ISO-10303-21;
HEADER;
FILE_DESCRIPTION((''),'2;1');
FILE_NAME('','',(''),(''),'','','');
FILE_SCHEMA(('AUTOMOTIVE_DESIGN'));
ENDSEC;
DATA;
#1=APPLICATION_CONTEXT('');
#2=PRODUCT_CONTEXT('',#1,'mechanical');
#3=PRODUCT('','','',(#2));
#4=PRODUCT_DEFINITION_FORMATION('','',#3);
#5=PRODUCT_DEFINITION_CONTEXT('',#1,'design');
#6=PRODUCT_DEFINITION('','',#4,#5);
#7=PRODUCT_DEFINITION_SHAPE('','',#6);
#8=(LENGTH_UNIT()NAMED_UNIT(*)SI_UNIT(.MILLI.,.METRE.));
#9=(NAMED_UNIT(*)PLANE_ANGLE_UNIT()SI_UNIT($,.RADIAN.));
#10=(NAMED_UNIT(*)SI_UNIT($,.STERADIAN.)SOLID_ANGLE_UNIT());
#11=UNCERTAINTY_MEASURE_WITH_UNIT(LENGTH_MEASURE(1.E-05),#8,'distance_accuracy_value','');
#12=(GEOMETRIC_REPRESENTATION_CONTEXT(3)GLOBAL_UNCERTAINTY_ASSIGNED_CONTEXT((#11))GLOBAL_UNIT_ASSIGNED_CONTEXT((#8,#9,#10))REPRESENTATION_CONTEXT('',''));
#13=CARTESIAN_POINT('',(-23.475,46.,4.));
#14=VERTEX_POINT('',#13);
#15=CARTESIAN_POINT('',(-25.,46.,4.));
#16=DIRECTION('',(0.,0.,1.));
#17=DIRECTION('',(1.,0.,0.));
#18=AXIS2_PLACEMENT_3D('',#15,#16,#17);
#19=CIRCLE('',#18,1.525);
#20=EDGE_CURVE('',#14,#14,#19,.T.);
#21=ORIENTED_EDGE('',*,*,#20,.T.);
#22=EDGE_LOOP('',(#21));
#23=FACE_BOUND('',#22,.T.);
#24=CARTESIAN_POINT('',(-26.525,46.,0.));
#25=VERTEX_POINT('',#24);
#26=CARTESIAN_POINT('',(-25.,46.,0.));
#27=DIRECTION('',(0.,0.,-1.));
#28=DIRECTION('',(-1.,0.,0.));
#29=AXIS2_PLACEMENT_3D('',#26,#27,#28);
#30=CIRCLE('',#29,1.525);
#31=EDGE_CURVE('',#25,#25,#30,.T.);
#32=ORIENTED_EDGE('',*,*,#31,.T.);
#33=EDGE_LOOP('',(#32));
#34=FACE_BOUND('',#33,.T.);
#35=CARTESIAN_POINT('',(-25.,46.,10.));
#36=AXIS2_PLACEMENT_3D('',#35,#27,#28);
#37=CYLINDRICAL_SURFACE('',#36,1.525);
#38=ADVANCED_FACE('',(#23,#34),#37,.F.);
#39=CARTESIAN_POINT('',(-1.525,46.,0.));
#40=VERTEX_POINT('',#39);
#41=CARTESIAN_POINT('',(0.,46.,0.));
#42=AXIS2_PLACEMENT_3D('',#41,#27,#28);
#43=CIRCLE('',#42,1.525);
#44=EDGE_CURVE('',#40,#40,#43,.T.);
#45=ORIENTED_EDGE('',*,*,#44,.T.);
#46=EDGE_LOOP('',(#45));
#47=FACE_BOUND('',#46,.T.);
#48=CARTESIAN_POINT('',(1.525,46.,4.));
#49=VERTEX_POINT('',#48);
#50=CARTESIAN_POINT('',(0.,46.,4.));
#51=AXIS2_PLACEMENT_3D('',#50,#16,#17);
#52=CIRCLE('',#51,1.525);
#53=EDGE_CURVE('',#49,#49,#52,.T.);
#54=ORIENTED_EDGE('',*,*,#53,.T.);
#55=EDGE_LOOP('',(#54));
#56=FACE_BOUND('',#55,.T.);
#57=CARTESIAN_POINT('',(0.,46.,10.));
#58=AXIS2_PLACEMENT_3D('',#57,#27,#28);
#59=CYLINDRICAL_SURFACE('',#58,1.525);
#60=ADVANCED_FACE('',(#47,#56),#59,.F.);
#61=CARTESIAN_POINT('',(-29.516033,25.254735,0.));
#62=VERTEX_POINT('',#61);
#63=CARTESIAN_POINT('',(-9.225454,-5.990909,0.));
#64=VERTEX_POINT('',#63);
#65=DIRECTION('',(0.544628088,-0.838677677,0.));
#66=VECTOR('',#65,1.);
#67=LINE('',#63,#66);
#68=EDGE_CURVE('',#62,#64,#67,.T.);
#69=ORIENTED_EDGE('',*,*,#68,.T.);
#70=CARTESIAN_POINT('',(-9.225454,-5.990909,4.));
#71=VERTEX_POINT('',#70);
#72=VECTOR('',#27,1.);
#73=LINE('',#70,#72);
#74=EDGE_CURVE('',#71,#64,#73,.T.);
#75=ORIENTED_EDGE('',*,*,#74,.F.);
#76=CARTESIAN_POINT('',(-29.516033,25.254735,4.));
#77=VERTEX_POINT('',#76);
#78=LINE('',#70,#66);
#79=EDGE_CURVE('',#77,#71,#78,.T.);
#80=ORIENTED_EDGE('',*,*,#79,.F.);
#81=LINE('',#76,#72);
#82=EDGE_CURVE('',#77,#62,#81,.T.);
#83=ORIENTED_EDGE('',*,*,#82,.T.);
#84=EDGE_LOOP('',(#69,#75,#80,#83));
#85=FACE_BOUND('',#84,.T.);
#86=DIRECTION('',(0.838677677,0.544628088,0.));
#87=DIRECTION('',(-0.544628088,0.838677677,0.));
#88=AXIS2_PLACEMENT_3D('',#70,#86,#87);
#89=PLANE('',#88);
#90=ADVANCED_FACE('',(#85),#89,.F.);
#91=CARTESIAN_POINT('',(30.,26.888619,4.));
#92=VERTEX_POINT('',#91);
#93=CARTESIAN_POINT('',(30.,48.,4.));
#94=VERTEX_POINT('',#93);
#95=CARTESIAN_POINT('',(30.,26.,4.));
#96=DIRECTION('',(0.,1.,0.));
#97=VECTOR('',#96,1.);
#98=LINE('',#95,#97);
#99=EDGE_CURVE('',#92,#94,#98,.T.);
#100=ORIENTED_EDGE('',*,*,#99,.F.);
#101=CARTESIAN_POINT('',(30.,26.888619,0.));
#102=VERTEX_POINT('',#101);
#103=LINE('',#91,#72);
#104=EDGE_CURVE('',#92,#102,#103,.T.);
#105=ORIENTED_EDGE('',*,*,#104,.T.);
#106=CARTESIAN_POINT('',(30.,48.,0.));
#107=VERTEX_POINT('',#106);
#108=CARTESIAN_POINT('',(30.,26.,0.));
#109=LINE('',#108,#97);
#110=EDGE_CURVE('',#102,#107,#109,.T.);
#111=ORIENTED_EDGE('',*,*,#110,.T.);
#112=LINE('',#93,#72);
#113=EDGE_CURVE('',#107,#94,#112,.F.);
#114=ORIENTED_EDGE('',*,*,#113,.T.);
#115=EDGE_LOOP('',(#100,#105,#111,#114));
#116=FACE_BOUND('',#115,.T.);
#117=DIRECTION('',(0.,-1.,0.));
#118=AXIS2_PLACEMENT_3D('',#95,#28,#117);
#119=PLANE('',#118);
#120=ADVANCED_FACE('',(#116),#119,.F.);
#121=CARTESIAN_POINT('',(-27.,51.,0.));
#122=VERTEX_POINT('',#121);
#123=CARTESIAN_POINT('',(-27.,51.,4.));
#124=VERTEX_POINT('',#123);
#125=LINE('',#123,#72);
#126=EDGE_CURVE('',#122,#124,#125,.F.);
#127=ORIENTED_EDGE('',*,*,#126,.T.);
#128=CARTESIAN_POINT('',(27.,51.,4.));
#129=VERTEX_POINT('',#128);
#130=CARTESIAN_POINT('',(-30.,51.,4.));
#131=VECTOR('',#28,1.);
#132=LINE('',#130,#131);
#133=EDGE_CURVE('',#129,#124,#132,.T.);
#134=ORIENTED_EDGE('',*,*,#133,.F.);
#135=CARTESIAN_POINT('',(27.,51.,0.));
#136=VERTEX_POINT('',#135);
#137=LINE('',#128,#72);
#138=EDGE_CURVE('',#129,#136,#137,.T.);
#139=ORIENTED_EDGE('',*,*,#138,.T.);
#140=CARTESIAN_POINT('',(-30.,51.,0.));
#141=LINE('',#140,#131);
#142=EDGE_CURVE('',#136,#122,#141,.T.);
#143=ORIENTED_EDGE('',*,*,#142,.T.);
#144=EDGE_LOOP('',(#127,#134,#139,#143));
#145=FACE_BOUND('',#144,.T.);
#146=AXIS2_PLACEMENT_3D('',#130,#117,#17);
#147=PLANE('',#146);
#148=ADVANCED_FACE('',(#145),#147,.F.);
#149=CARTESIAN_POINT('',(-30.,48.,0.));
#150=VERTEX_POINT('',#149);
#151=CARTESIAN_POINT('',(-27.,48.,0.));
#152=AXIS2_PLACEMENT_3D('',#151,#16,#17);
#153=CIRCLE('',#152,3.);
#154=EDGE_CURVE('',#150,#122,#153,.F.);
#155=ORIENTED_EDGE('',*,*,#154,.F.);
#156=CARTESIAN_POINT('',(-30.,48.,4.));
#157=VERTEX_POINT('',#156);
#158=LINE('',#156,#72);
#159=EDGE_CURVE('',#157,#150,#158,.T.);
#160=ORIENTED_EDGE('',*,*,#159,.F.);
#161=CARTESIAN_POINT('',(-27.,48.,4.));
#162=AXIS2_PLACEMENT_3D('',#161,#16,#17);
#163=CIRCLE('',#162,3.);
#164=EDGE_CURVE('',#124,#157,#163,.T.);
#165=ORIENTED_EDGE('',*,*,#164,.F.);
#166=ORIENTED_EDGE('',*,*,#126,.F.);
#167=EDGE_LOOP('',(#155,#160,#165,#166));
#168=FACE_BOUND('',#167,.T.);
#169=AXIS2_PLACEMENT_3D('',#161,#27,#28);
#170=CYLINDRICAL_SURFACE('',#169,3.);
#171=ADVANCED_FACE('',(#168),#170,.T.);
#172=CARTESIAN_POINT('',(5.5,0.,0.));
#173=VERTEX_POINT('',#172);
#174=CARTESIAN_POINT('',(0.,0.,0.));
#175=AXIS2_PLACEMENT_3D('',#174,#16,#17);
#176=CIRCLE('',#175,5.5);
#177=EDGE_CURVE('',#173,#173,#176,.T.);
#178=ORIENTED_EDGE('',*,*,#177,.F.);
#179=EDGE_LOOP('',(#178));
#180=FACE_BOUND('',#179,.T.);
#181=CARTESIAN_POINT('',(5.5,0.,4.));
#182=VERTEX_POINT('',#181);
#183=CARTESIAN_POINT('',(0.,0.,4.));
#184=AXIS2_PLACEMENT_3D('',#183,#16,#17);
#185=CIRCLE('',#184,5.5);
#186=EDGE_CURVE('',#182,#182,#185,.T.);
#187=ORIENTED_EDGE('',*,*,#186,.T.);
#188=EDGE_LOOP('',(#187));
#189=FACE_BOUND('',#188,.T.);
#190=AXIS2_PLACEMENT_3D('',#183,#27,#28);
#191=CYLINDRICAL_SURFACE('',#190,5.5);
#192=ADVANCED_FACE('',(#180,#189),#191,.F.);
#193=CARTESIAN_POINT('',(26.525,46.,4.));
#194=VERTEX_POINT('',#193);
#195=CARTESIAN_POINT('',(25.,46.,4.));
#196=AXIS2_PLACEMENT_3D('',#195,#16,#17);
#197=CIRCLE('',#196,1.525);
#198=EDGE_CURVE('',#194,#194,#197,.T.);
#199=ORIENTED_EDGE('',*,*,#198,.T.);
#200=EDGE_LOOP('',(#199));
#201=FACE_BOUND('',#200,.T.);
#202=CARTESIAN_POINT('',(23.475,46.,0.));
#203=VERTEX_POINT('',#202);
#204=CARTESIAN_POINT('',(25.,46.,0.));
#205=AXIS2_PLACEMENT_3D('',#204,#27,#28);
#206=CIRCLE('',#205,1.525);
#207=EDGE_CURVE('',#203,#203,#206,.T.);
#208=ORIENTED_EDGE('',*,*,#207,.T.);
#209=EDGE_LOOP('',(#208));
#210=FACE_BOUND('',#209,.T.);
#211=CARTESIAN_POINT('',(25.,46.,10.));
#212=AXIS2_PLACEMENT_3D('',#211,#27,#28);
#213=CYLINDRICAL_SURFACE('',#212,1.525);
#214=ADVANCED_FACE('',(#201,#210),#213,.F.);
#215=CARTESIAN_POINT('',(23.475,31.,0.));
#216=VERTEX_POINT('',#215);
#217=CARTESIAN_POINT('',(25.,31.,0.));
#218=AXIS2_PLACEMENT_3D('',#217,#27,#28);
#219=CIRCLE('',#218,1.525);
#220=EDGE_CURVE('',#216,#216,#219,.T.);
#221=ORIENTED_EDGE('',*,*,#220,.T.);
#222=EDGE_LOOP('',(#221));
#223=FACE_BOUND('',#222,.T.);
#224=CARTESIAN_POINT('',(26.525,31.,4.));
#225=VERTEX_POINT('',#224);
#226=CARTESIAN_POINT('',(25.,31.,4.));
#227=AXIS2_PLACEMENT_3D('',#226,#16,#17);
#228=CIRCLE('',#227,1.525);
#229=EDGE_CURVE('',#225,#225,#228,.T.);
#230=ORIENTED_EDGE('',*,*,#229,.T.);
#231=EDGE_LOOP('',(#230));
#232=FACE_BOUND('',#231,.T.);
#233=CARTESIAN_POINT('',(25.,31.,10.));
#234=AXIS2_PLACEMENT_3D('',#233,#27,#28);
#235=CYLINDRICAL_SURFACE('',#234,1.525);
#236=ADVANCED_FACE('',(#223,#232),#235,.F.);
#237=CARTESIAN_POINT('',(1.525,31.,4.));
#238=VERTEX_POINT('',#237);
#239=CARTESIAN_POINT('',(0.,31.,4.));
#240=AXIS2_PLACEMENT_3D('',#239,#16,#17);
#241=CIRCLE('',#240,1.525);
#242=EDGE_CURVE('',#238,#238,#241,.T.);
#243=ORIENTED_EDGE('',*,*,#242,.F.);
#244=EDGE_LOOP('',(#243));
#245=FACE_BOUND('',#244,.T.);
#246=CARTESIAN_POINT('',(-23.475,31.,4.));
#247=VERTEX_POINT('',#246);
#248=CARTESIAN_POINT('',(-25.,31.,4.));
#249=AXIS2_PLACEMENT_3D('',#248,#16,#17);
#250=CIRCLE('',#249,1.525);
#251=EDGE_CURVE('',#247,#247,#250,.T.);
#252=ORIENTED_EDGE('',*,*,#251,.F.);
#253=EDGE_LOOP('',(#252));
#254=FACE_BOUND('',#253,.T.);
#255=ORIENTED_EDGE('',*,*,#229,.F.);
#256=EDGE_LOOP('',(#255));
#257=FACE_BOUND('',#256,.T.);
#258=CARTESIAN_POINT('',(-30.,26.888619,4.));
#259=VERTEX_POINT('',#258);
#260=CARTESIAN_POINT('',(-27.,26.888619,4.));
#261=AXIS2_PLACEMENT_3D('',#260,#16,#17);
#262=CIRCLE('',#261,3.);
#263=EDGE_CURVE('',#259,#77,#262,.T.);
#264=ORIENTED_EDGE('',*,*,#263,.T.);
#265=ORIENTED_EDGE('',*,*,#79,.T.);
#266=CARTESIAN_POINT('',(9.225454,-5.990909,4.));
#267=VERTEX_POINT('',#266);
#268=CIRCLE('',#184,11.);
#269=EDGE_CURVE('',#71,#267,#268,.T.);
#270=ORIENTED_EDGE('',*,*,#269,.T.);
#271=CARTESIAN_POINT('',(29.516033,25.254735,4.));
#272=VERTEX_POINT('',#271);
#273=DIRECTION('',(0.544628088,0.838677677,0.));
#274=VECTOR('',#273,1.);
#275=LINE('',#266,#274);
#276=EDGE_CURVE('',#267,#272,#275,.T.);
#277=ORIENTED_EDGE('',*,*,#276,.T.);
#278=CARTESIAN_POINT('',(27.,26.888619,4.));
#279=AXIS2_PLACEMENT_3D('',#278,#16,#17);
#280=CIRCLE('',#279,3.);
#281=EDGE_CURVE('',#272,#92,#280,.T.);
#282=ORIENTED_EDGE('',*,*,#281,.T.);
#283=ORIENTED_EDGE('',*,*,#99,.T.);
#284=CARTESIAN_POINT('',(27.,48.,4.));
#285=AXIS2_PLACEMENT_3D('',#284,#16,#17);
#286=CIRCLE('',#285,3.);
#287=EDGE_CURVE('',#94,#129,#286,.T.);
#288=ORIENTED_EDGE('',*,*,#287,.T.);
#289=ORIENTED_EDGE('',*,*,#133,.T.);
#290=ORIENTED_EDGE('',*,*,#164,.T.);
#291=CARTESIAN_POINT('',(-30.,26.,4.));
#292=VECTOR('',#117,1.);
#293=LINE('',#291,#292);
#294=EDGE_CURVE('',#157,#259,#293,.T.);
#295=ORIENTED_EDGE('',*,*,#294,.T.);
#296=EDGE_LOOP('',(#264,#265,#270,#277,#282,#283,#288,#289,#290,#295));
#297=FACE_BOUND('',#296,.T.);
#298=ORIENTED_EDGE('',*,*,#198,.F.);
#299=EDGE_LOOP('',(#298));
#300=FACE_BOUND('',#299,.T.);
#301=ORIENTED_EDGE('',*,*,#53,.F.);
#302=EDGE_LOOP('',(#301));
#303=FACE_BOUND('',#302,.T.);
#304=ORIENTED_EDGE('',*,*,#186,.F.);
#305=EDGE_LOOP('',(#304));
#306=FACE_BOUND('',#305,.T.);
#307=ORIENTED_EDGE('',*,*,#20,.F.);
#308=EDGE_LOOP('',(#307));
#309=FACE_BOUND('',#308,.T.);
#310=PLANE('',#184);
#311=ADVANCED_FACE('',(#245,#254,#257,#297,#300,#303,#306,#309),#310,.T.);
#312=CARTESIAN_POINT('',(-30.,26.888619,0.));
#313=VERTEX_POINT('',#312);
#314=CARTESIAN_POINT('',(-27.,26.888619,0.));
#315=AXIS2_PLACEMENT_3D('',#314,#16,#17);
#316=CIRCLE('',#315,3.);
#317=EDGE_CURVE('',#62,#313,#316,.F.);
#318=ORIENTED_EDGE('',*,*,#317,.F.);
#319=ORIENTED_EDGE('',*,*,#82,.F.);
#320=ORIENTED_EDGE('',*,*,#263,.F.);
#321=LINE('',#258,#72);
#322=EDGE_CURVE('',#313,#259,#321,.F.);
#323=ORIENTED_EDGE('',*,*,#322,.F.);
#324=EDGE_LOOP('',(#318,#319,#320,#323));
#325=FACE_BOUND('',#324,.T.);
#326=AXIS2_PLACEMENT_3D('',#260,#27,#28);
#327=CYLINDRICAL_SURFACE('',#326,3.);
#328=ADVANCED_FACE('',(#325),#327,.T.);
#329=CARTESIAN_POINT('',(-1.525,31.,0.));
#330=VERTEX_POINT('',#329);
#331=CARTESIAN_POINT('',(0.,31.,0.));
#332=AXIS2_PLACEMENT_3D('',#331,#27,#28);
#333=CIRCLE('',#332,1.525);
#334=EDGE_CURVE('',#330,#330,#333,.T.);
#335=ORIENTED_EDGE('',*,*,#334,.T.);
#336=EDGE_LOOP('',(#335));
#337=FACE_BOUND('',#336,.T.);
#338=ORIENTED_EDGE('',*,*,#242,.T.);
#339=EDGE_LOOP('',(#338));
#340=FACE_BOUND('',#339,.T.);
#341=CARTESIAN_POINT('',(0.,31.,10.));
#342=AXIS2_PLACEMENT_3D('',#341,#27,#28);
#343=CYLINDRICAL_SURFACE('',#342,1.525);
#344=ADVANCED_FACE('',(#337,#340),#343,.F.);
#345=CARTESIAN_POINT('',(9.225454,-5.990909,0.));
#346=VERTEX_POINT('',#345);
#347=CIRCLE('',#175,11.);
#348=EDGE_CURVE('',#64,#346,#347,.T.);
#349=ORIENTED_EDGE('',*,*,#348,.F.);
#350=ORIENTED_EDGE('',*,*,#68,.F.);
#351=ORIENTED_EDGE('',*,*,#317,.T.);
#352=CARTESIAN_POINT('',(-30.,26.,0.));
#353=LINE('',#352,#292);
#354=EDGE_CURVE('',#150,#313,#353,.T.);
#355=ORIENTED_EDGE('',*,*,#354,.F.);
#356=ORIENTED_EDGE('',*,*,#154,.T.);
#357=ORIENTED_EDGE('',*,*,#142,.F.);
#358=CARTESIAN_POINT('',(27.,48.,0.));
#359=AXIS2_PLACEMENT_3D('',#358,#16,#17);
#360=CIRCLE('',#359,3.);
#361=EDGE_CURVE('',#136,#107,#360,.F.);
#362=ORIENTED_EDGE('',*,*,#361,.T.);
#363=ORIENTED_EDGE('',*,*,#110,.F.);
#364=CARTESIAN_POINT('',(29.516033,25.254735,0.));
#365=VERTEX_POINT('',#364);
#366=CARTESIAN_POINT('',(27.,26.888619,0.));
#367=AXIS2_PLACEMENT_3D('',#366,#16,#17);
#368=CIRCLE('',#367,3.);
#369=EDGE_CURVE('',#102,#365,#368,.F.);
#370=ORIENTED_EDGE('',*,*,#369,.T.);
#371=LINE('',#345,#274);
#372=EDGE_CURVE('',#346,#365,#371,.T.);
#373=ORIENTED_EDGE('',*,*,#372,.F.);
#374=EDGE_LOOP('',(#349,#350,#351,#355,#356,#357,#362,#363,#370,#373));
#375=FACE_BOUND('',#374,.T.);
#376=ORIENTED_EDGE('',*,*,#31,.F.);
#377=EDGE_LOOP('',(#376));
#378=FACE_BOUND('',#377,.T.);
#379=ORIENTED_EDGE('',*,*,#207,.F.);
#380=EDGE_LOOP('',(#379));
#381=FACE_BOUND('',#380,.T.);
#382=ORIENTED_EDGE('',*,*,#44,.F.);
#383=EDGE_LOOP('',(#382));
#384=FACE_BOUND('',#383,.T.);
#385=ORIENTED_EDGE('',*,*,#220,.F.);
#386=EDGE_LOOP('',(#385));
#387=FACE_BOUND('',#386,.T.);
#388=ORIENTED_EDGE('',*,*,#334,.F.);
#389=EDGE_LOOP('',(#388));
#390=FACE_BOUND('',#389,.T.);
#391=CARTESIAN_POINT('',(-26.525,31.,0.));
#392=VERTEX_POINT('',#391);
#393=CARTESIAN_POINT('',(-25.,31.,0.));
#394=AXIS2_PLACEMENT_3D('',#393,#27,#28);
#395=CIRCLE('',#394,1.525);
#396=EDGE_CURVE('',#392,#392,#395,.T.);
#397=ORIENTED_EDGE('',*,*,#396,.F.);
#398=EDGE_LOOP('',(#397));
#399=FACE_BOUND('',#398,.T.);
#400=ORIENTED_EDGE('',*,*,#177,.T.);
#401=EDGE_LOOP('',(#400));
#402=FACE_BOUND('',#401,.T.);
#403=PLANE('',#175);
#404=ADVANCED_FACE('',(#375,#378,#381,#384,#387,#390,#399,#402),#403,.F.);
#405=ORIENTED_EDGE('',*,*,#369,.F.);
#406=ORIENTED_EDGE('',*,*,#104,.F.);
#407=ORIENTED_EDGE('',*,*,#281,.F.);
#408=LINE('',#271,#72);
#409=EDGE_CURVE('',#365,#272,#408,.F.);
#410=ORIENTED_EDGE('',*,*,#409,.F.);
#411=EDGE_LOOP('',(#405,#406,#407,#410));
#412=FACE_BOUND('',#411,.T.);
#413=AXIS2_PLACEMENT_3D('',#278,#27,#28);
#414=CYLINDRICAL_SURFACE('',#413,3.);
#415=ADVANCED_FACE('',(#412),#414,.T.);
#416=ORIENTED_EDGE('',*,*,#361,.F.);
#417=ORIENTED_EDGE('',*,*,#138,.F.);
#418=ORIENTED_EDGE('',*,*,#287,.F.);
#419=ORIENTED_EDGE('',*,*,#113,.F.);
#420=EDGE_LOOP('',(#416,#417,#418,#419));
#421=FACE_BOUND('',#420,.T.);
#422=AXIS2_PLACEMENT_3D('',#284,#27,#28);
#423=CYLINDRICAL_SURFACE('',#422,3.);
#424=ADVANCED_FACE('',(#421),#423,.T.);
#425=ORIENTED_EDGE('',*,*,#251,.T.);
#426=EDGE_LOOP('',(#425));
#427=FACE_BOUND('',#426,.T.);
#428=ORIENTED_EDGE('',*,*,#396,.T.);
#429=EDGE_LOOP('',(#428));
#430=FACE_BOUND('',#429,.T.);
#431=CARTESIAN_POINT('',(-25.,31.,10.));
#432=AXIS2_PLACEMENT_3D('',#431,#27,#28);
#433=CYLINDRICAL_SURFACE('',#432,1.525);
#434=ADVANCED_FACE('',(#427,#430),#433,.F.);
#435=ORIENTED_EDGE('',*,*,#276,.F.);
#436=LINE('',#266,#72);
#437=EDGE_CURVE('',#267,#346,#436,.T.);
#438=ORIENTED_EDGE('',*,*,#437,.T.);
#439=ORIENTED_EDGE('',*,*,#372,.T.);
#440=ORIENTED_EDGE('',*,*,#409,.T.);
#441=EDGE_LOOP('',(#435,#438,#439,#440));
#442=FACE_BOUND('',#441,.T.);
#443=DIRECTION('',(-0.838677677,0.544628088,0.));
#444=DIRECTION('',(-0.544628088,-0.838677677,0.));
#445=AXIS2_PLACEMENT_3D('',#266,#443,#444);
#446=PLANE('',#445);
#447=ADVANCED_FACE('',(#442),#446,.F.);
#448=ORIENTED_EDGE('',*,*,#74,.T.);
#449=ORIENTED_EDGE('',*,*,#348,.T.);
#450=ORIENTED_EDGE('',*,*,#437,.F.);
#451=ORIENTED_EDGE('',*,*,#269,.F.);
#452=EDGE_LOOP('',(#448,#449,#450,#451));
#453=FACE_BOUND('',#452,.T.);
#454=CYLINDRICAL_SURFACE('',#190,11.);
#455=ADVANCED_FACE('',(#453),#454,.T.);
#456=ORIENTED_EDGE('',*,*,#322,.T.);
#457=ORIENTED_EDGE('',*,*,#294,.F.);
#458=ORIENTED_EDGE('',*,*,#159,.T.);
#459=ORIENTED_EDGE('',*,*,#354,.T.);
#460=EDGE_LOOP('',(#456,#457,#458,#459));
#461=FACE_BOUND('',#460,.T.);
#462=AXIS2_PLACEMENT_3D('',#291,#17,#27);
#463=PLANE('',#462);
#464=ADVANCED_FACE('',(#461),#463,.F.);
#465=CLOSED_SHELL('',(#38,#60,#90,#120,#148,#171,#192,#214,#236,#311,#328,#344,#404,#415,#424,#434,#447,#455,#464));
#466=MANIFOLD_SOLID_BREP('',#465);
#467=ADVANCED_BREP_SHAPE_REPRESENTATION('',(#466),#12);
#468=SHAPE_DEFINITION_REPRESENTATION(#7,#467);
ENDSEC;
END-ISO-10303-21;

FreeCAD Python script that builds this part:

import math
import FreeCAD as App
import Part
import Sketcher

V = App.Vector
Q = App.Units.Quantity


def edges_at(feature, points):
    """Names of the edges that pass closest to the given points."""
    edges = feature.Shape.Edges
    near = lambda p: min(range(len(edges)), key=lambda i: edges[i].distToShape(Part.Vertex(*p))[0])
    return sorted({f"Edge{near(p) + 1}" for p in points})

doc = App.newDocument("Part")
params = doc.addObject("Spreadsheet::Sheet", "Params")
for row, (alias, value) in enumerate([
    ("sketch1_diameter", "11 mm"),
    ("sketch1_radius", "11 mm"),
    ("sketch1_width", "60 mm"),
    ("sketch1_height", "25 mm"),
    ("pad1_length", "4 mm"),
    ("fillet_radius", "3 mm"),
    ("sketch2_diameter", "3.05 mm"),
    ("pocket1_length", "10 mm"),
], start=1):
    params.set(f"A{row}", alias)
    params.set(f"B{row}", "=" + value)
    params.setAlias(f"B{row}", alias)

body = doc.addObject("PartDesign::Body", "Body")

# Sketch on XY plane
sketch1 = body.newObject("Sketcher::SketchObject", "Sketch")
sketch1.AttachmentSupport = (doc.getObject("XY_Plane"), [""])
sketch1.MapMode = "FlatFace"
sketch1.addGeometry([
    Part.LineSegment(V(-30, 26, 0), V(-9.225454, -5.990909, 0)),  # 0
    Part.ArcOfCircle(Part.Circle(V(0, 0, 0), V(0, 0, 1), 11), math.radians(-147.000748), math.radians(-32.999252)),  # 1
    Part.LineSegment(V(9.225454, -5.990909, 0), V(30, 26, 0)),  # 2
    Part.LineSegment(V(30, 26, 0), V(30, 51, 0)),  # 3
    Part.LineSegment(V(30, 51, 0), V(-30, 51, 0)),  # 4
    Part.LineSegment(V(-30, 51, 0), V(-30, 26, 0)),  # 5
    Part.Circle(V(0, 0, 0), V(0, 0, 1), 5.5),  # 6
], False)
sketch1.addConstraint([
    Sketcher.Constraint("Tangent", 0, 2, 1, 1),
    Sketcher.Constraint("Tangent", 1, 2, 2, 1),
    Sketcher.Constraint("Coincident", 2, 2, 3, 1),
    Sketcher.Constraint("Coincident", 3, 2, 4, 1),
    Sketcher.Constraint("Coincident", 4, 2, 5, 1),
    Sketcher.Constraint("Coincident", 5, 2, 0, 1),
    Sketcher.Constraint("Vertical", 3),
    Sketcher.Constraint("Horizontal", 4),
    Sketcher.Constraint("Vertical", 5),
    Sketcher.Constraint("Coincident", 1, 3, -1, 1),
    Sketcher.Constraint("Coincident", 6, 3, -1, 1),
    Sketcher.Constraint("Symmetric", 2, 2, 5, 2, -2),
    Sketcher.Constraint("Diameter", 6, Q("11 mm")),
    Sketcher.Constraint("Radius", 1, Q("11 mm")),
    Sketcher.Constraint("DistanceX", 4, 2, 4, 1, Q("60 mm")),
    Sketcher.Constraint("DistanceY", 3, 1, 3, 2, Q("25 mm")),
    Sketcher.Constraint("DistanceY", -1, 1, 2, 2, Q("26 mm")),
])
sketch1.setExpression("Constraints[12]", "Params.sketch1_diameter")
sketch1.setExpression("Constraints[13]", "Params.sketch1_radius")
sketch1.setExpression("Constraints[14]", "Params.sketch1_width")
sketch1.setExpression("Constraints[15]", "Params.sketch1_height")
pad1 = body.newObject("PartDesign::Pad", "Pad")
pad1.Profile = sketch1
pad1.setExpression("Length", "Params.pad1_length")
doc.recompute()

fillet = body.newObject("PartDesign::Fillet", "Fillet")
fillet.Base = (pad1, edges_at(pad1, [
    (-30, 26, 2),
    (-30, 51, 2),
    (30, 51, 2),
    (30, 26, 2),
]))
fillet.setExpression("Radius", "Params.fillet_radius")

# Sketch on XY plane
sketch2 = body.newObject("Sketcher::SketchObject", "Sketch001")
sketch2.AttachmentSupport = (doc.getObject("XY_Plane"), [""])
sketch2.MapMode = "FlatFace"
sketch2.addGeometry([
    Part.Circle(V(-25, 31, 0), V(0, 0, 1), 1.525),  # 0
    Part.Circle(V(-25, 46, 0), V(0, 0, 1), 1.525),  # 1
    Part.Circle(V(0, 31, 0), V(0, 0, 1), 1.525),  # 2
    Part.Circle(V(0, 46, 0), V(0, 0, 1), 1.525),  # 3
    Part.Circle(V(25, 31, 0), V(0, 0, 1), 1.525),  # 4
    Part.Circle(V(25, 46, 0), V(0, 0, 1), 1.525),  # 5
], False)
sketch2.addConstraint([
    Sketcher.Constraint("Equal", 0, 1),
    Sketcher.Constraint("Equal", 1, 2),
    Sketcher.Constraint("Equal", 2, 3),
    Sketcher.Constraint("Equal", 3, 4),
    Sketcher.Constraint("Equal", 4, 5),
    Sketcher.Constraint("Symmetric", 0, 3, 4, 3, -2),
    Sketcher.Constraint("Symmetric", 1, 3, 5, 3, -2),
    Sketcher.Constraint("PointOnObject", 2, 3, -2),
    Sketcher.Constraint("PointOnObject", 3, 3, -2),
    Sketcher.Constraint("Horizontal", 0, 3, 2, 3),
    Sketcher.Constraint("Horizontal", 1, 3, 3, 3),
    Sketcher.Constraint("Vertical", 0, 3, 1, 3),
    Sketcher.Constraint("Diameter", 0, Q("3.05 mm")),
    Sketcher.Constraint("DistanceX", 0, 3, -1, 1, Q("25 mm")),
    Sketcher.Constraint("DistanceY", -1, 1, 0, 3, Q("31 mm")),
    Sketcher.Constraint("DistanceY", -1, 1, 1, 3, Q("46 mm")),
])
sketch2.setExpression("Constraints[12]", "Params.sketch2_diameter")
pocket1 = body.newObject("PartDesign::Pocket", "Pocket")
pocket1.Profile = sketch2
pocket1.setExpression("Length", "Params.pocket1_length")
pocket1.Reversed = True

doc.recompute()
